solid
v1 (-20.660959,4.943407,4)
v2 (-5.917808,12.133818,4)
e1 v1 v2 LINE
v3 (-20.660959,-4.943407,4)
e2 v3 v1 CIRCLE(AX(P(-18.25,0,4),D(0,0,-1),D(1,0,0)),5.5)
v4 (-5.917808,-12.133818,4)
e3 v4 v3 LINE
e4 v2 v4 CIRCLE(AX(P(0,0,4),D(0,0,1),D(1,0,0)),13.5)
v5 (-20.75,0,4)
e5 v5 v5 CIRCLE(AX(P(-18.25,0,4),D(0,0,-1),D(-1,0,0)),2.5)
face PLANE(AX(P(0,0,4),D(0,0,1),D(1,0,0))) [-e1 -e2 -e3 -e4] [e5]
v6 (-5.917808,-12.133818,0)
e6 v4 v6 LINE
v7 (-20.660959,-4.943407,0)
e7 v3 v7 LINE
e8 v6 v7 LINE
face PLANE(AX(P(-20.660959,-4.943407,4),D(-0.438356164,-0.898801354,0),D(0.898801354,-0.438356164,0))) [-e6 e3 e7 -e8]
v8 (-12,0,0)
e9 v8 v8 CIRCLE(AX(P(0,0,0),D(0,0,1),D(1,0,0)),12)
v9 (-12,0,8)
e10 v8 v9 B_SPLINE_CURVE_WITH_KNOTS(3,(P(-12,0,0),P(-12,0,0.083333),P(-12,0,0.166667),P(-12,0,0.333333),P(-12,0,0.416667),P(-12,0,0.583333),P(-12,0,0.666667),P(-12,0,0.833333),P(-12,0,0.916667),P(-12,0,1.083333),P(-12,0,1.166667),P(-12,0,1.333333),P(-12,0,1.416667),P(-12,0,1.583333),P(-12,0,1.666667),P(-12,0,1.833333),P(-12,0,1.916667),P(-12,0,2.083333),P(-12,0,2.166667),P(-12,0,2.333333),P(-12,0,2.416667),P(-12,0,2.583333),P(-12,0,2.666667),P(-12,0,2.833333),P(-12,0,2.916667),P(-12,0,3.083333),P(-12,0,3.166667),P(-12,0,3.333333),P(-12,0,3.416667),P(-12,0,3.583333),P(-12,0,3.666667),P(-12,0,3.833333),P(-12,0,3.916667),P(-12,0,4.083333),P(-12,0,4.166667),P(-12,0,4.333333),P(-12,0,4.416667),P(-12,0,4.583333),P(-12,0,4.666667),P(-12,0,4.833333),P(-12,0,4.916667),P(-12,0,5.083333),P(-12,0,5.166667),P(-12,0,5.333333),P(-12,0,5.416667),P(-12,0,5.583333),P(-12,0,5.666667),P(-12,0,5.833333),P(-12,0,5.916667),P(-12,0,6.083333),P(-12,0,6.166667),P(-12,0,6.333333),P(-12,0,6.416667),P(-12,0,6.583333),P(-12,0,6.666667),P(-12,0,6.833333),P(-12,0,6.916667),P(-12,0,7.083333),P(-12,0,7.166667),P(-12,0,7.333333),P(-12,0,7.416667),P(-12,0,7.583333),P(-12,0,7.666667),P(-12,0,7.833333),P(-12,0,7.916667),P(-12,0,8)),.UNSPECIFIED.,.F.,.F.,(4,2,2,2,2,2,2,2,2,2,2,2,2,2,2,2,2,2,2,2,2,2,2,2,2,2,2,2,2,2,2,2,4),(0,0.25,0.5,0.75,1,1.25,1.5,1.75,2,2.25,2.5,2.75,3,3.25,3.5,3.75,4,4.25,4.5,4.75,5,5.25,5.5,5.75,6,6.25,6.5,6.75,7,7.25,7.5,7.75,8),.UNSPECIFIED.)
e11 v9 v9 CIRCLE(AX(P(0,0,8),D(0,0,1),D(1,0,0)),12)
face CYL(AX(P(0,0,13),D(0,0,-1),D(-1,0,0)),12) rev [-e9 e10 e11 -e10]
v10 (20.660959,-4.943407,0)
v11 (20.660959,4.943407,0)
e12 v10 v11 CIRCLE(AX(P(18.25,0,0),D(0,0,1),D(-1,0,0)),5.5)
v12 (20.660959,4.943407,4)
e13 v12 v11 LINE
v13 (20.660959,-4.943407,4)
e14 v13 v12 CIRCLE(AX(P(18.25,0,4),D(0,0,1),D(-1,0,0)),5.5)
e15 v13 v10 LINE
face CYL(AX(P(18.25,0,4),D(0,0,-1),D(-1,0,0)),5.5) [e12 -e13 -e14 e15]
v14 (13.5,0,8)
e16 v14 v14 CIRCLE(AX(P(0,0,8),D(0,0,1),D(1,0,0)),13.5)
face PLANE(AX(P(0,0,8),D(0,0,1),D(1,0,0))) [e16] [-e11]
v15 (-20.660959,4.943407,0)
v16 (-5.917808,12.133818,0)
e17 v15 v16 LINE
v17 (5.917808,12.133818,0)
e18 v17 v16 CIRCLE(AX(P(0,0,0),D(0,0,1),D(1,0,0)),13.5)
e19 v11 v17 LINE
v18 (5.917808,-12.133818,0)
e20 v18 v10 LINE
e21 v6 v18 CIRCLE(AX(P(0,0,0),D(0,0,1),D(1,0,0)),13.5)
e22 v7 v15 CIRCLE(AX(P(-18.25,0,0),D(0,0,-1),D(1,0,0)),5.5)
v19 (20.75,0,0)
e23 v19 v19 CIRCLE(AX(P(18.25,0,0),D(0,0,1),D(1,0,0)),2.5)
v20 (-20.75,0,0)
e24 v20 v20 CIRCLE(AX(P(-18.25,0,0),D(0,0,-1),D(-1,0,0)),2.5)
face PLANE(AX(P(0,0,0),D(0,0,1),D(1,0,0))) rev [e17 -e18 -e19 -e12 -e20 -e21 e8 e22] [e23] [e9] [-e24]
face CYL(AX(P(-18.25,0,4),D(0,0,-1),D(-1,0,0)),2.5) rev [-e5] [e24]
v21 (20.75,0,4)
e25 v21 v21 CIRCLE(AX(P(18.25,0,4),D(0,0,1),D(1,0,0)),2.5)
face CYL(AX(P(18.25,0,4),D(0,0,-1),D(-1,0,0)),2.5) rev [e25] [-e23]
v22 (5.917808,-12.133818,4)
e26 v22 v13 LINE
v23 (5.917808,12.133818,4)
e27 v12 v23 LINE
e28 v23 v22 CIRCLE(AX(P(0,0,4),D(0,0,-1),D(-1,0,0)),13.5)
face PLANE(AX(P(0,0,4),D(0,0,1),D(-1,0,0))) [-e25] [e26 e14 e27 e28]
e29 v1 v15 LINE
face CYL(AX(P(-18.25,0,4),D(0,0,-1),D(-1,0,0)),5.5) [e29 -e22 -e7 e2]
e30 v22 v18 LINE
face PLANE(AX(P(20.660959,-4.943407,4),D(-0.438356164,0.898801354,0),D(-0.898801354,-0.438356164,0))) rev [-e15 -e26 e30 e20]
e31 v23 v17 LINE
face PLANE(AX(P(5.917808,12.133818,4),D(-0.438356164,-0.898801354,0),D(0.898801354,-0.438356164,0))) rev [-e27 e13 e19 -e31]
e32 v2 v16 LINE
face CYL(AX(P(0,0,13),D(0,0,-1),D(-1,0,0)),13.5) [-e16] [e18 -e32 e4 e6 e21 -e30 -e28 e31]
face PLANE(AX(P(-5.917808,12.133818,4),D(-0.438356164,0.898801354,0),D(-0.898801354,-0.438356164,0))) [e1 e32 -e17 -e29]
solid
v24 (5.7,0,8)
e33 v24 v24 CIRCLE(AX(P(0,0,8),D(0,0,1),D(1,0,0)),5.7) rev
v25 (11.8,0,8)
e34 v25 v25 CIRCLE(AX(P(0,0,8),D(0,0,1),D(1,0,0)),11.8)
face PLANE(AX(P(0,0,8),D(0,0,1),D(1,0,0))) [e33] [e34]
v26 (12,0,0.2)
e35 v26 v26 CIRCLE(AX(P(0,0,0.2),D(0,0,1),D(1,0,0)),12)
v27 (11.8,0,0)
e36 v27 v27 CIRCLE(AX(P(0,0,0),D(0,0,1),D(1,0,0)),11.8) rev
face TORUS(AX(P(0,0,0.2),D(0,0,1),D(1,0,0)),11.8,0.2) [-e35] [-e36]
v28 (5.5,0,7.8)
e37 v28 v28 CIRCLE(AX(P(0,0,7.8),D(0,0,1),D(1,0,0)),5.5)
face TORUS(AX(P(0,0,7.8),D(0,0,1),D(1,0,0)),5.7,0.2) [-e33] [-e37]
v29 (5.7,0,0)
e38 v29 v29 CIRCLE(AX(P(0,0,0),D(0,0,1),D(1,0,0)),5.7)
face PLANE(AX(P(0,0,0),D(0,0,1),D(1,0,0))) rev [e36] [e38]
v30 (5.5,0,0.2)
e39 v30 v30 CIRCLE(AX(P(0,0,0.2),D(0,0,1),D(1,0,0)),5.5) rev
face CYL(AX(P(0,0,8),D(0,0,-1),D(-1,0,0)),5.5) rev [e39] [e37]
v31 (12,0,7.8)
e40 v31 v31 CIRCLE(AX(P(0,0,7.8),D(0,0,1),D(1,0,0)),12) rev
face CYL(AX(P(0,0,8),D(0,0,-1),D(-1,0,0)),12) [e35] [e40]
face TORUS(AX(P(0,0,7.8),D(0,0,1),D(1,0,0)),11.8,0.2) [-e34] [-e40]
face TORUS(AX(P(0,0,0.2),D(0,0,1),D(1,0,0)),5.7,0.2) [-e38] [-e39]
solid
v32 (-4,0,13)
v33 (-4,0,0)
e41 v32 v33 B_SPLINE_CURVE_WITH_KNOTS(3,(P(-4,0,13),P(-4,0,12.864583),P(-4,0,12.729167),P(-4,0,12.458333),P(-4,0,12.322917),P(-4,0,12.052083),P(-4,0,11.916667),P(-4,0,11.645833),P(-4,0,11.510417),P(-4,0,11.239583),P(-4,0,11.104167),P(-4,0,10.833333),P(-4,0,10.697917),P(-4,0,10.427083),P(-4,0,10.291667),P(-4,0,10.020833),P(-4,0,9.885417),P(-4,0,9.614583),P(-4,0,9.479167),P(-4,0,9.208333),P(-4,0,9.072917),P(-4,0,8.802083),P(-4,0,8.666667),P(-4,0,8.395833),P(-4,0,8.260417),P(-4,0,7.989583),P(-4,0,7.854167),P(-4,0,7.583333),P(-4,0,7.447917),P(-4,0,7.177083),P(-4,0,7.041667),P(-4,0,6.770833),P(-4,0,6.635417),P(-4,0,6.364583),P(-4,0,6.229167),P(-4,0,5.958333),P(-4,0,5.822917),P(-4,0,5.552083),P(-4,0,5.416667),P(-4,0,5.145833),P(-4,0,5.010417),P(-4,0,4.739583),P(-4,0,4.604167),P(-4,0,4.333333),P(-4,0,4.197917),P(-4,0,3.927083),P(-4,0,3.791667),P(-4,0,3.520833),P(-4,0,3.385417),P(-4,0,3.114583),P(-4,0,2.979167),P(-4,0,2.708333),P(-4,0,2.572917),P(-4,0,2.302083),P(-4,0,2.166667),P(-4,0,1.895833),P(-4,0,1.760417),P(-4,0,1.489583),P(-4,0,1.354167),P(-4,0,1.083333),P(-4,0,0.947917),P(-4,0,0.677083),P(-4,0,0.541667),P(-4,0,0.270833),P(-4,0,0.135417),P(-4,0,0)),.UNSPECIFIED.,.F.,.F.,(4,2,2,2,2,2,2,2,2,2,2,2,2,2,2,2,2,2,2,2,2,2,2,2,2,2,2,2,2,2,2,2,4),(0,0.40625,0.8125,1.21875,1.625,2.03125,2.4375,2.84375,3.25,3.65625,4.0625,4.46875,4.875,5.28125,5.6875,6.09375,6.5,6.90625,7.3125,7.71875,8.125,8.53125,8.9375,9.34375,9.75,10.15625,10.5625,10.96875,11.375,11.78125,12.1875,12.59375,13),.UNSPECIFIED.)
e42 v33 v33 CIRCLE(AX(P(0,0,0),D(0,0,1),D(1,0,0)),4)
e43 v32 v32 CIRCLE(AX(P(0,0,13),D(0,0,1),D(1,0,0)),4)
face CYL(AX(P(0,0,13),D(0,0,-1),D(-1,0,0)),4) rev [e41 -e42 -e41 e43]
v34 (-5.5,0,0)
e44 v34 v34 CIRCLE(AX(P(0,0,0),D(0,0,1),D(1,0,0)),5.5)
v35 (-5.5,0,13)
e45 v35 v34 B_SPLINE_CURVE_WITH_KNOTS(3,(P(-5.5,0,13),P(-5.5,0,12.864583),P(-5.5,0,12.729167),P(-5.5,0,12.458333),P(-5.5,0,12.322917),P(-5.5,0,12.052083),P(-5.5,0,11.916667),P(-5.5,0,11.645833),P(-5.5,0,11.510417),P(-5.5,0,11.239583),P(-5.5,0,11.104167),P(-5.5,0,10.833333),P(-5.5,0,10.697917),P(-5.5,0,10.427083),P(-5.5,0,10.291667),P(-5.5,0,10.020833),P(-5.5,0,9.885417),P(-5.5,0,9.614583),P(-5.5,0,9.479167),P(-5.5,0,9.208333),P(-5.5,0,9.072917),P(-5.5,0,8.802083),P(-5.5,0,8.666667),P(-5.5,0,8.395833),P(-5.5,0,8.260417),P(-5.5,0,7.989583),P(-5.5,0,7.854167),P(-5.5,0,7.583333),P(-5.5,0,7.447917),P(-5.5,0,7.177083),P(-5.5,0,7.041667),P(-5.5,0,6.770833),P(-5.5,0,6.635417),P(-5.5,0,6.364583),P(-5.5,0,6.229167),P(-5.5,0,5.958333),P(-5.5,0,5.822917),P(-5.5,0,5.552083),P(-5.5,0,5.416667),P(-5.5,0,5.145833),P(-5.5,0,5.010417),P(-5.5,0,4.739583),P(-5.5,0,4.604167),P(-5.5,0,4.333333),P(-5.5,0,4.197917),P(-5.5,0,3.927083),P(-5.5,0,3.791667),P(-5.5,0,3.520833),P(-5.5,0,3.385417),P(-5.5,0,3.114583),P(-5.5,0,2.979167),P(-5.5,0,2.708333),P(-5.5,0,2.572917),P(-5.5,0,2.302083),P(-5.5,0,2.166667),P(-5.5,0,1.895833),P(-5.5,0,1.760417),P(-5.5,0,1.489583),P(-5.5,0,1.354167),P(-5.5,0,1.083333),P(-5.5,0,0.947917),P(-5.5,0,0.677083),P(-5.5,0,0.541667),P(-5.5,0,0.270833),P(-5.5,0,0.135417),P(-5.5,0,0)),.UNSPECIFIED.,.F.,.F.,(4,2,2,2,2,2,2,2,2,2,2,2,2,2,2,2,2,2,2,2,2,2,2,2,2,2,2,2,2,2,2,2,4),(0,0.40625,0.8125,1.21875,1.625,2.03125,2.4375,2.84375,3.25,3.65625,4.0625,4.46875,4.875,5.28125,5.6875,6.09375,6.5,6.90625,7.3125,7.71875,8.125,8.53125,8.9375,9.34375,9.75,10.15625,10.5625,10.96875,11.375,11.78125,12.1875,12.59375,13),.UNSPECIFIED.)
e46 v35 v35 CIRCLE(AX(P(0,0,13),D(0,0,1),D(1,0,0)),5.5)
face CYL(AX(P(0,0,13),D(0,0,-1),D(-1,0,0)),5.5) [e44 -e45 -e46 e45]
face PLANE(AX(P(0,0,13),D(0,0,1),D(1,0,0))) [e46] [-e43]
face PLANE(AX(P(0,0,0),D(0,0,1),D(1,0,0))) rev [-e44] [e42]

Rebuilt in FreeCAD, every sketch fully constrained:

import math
import FreeCAD as App
import Part
import Sketcher

V = App.Vector


def edges_at(feature, points):
    """Names of the edges that pass closest to the given points."""
    edges = feature.Shape.Edges
    near = lambda p: min(range(len(edges)), key=lambda i: edges[i].distToShape(Part.Vertex(*p))[0])
    return sorted({f"Edge{near(p) + 1}" for p in points})

doc = App.newDocument("Part")
body = doc.addObject("PartDesign::Body", "Body")

sketch1 = body.newObject("Sketcher::SketchObject", "Sketch")
sketch1.AttachmentSupport = (doc.getObject("XY_Plane"), [""])
sketch1.MapMode = "FlatFace"
sketch1.addGeometry([
    Part.Circle(V(0, 0, 0), V(0, 0, 1), 14),
    Part.Circle(V(0, 0, 0), V(0, 0, 1), 12),
], False)
sketch1.addConstraint([
    Sketcher.Constraint("Coincident", 0, 3, -1, 1),
    Sketcher.Constraint("Coincident", 1, 3, -1, 1),
    Sketcher.Constraint("Diameter", 0, 27.0),
    Sketcher.Constraint("Diameter", 1, 24.0),
])
pad1 = body.newObject("PartDesign::Pad", "Pad")
pad1.Profile = sketch1
pad1.Length = 13

sketch2 = body.newObject("Sketcher::SketchObject", "Sketch001")
sketch2.AttachmentSupport = (doc.getObject("XY_Plane"), [""])
sketch2.MapMode = "FlatFace"
sketch2.addGeometry([
    Part.LineSegment(V(-20.7, 4.9, 0), V(-5.9, 12.1, 0)),
    Part.ArcOfCircle(Part.Circle(V(0, 0, 0), V(0, 0, 1), 13.5), math.radians(116), math.radians(244)),
    Part.LineSegment(V(-5.9, -12.1, 0), V(-20.7, -4.9, 0)),
    Part.ArcOfCircle(Part.Circle(V(-18.2, 0, 0), V(0, 0, 1), 5.5), math.radians(116), math.radians(244)),
    Part.Circle(V(-18.2, 0, 0), V(0, 0, 1), 2.5),
], False)
sketch2.addConstraint([
    Sketcher.Constraint("Tangent", 0, 2, 1, 1),
    Sketcher.Constraint("Tangent", 1, 2, 2, 1),
    Sketcher.Constraint("Tangent", 2, 2, 3, 2),
    Sketcher.Constraint("Tangent", 3, 1, 0, 1),
    Sketcher.Constraint("Coincident", 1, 3, -1, 1),
    Sketcher.Constraint("Coincident", 4, 3, 3, 3),
    Sketcher.Constraint("PointOnObject", 3, 3, -1),
    Sketcher.Constraint("Diameter", 4, 5.0),
    Sketcher.Constraint("Radius", 1, 13.5),
    Sketcher.Constraint("Radius", 3, 5.5),
    Sketcher.Constraint("DistanceX", 3, 3, -1, 1, 18.25),
])
pad2 = body.newObject("PartDesign::Pad", "Pad001")
pad2.Profile = sketch2
pad2.Length = 4
doc.recompute()

mirrored = body.newObject("PartDesign::Mirrored", "Mirrored")
mirrored.Originals = [pad2]
mirrored.MirrorPlane = (doc.getObject("YZ_Plane"), [""])
body.Tip = mirrored

sketch3 = body.newObject("Sketcher::SketchObject", "Sketch002")
sketch3.AttachmentSupport = (doc.getObject("XY_Plane"), [""])
sketch3.MapMode = "FlatFace"
sketch3.AttachmentOffset = App.Placement(V(0, 0, 13), App.Rotation())
sketch3.addGeometry([
    Part.LineSegment(V(-37, 37, 0), V(-37, -37, 0)),
    Part.LineSegment(V(-37, -37, 0), V(37, -37, 0)),
    Part.LineSegment(V(37, -37, 0), V(37, 37, 0)),
    Part.LineSegment(V(37, 37, 0), V(-37, 37, 0)),
    Part.Circle(V(0, 0, 0), V(0, 0, 1), 9),
], False)
sketch3.addConstraint([
    Sketcher.Constraint("Coincident", 0, 2, 1, 1),
    Sketcher.Constraint("Coincident", 1, 2, 2, 1),
    Sketcher.Constraint("Coincident", 2, 2, 3, 1),
    Sketcher.Constraint("Coincident", 3, 2, 0, 1),
    Sketcher.Constraint("Vertical", 0),
    Sketcher.Constraint("Horizontal", 1),
    Sketcher.Constraint("Vertical", 2),
    Sketcher.Constraint("Horizontal", 3),
    Sketcher.Constraint("Coincident", 4, 3, -1, 1),
    Sketcher.Constraint("Symmetric", 0, 2, 2, 2, -1, 1),
    Sketcher.Constraint("Equal", 3, 0),
    Sketcher.Constraint("Diameter", 4, 17.5),
    Sketcher.Constraint("DistanceX", 1, 1, 1, 2, 74.0),
])
pocket1 = body.newObject("PartDesign::Pocket", "Pocket")
pocket1.Profile = sketch3
pocket1.Length = 5
body2 = doc.addObject("PartDesign::Body", "Body001")

sketch4 = body2.newObject("Sketcher::SketchObject", "Sketch003")
sketch4.AttachmentSupport = (doc.getObject("XY_Plane001"), [""])
sketch4.MapMode = "FlatFace"
sketch4.addGeometry([
    Part.Circle(V(0, 0, 0), V(0, 0, 1), 5.5),
    Part.Circle(V(0, 0, 0), V(0, 0, 1), 4),
], False)
sketch4.addConstraint([
    Sketcher.Constraint("Coincident", 0, 3, -1, 1),
    Sketcher.Constraint("Coincident", 1, 3, -1, 1),
    Sketcher.Constraint("Diameter", 0, 11.0),
    Sketcher.Constraint("Diameter", 1, 8.0),
])
pad3 = body2.newObject("PartDesign::Pad", "Pad002")
pad3.Profile = sketch4
pad3.Length = 13
body3 = doc.addObject("PartDesign::Body", "Body002")

sketch5 = body3.newObject("Sketcher::SketchObject", "Sketch004")
sketch5.AttachmentSupport = (doc.getObject("XY_Plane002"), [""])
sketch5.MapMode = "FlatFace"
sketch5.addGeometry([
    Part.Circle(V(0, 0, 0), V(0, 0, 1), 12),
    Part.Circle(V(0, 0, 0), V(0, 0, 1), 6),
], False)
sketch5.addConstraint([
    Sketcher.Constraint("Coincident", 0, 3, -1, 1),
    Sketcher.Constraint("Coincident", 1, 3, -1, 1),
    Sketcher.Constraint("Diameter", 0, 24.0),
    Sketcher.Constraint("Diameter", 1, 11.0),
])
pad4 = body3.newObject("PartDesign::Pad", "Pad003")
pad4.Profile = sketch5
pad4.Length = 8
doc.recompute()

fillet = body3.newObject("PartDesign::Fillet", "Fillet")
fillet.Base = (pad4, edges_at(pad4, [
    (-12, 0, 8),
    (-12, 0, 0),
    (-5.5, 0, 0),
    (-5.5, 0, 8),
]))
fillet.Radius = 0.2

doc.recompute()
